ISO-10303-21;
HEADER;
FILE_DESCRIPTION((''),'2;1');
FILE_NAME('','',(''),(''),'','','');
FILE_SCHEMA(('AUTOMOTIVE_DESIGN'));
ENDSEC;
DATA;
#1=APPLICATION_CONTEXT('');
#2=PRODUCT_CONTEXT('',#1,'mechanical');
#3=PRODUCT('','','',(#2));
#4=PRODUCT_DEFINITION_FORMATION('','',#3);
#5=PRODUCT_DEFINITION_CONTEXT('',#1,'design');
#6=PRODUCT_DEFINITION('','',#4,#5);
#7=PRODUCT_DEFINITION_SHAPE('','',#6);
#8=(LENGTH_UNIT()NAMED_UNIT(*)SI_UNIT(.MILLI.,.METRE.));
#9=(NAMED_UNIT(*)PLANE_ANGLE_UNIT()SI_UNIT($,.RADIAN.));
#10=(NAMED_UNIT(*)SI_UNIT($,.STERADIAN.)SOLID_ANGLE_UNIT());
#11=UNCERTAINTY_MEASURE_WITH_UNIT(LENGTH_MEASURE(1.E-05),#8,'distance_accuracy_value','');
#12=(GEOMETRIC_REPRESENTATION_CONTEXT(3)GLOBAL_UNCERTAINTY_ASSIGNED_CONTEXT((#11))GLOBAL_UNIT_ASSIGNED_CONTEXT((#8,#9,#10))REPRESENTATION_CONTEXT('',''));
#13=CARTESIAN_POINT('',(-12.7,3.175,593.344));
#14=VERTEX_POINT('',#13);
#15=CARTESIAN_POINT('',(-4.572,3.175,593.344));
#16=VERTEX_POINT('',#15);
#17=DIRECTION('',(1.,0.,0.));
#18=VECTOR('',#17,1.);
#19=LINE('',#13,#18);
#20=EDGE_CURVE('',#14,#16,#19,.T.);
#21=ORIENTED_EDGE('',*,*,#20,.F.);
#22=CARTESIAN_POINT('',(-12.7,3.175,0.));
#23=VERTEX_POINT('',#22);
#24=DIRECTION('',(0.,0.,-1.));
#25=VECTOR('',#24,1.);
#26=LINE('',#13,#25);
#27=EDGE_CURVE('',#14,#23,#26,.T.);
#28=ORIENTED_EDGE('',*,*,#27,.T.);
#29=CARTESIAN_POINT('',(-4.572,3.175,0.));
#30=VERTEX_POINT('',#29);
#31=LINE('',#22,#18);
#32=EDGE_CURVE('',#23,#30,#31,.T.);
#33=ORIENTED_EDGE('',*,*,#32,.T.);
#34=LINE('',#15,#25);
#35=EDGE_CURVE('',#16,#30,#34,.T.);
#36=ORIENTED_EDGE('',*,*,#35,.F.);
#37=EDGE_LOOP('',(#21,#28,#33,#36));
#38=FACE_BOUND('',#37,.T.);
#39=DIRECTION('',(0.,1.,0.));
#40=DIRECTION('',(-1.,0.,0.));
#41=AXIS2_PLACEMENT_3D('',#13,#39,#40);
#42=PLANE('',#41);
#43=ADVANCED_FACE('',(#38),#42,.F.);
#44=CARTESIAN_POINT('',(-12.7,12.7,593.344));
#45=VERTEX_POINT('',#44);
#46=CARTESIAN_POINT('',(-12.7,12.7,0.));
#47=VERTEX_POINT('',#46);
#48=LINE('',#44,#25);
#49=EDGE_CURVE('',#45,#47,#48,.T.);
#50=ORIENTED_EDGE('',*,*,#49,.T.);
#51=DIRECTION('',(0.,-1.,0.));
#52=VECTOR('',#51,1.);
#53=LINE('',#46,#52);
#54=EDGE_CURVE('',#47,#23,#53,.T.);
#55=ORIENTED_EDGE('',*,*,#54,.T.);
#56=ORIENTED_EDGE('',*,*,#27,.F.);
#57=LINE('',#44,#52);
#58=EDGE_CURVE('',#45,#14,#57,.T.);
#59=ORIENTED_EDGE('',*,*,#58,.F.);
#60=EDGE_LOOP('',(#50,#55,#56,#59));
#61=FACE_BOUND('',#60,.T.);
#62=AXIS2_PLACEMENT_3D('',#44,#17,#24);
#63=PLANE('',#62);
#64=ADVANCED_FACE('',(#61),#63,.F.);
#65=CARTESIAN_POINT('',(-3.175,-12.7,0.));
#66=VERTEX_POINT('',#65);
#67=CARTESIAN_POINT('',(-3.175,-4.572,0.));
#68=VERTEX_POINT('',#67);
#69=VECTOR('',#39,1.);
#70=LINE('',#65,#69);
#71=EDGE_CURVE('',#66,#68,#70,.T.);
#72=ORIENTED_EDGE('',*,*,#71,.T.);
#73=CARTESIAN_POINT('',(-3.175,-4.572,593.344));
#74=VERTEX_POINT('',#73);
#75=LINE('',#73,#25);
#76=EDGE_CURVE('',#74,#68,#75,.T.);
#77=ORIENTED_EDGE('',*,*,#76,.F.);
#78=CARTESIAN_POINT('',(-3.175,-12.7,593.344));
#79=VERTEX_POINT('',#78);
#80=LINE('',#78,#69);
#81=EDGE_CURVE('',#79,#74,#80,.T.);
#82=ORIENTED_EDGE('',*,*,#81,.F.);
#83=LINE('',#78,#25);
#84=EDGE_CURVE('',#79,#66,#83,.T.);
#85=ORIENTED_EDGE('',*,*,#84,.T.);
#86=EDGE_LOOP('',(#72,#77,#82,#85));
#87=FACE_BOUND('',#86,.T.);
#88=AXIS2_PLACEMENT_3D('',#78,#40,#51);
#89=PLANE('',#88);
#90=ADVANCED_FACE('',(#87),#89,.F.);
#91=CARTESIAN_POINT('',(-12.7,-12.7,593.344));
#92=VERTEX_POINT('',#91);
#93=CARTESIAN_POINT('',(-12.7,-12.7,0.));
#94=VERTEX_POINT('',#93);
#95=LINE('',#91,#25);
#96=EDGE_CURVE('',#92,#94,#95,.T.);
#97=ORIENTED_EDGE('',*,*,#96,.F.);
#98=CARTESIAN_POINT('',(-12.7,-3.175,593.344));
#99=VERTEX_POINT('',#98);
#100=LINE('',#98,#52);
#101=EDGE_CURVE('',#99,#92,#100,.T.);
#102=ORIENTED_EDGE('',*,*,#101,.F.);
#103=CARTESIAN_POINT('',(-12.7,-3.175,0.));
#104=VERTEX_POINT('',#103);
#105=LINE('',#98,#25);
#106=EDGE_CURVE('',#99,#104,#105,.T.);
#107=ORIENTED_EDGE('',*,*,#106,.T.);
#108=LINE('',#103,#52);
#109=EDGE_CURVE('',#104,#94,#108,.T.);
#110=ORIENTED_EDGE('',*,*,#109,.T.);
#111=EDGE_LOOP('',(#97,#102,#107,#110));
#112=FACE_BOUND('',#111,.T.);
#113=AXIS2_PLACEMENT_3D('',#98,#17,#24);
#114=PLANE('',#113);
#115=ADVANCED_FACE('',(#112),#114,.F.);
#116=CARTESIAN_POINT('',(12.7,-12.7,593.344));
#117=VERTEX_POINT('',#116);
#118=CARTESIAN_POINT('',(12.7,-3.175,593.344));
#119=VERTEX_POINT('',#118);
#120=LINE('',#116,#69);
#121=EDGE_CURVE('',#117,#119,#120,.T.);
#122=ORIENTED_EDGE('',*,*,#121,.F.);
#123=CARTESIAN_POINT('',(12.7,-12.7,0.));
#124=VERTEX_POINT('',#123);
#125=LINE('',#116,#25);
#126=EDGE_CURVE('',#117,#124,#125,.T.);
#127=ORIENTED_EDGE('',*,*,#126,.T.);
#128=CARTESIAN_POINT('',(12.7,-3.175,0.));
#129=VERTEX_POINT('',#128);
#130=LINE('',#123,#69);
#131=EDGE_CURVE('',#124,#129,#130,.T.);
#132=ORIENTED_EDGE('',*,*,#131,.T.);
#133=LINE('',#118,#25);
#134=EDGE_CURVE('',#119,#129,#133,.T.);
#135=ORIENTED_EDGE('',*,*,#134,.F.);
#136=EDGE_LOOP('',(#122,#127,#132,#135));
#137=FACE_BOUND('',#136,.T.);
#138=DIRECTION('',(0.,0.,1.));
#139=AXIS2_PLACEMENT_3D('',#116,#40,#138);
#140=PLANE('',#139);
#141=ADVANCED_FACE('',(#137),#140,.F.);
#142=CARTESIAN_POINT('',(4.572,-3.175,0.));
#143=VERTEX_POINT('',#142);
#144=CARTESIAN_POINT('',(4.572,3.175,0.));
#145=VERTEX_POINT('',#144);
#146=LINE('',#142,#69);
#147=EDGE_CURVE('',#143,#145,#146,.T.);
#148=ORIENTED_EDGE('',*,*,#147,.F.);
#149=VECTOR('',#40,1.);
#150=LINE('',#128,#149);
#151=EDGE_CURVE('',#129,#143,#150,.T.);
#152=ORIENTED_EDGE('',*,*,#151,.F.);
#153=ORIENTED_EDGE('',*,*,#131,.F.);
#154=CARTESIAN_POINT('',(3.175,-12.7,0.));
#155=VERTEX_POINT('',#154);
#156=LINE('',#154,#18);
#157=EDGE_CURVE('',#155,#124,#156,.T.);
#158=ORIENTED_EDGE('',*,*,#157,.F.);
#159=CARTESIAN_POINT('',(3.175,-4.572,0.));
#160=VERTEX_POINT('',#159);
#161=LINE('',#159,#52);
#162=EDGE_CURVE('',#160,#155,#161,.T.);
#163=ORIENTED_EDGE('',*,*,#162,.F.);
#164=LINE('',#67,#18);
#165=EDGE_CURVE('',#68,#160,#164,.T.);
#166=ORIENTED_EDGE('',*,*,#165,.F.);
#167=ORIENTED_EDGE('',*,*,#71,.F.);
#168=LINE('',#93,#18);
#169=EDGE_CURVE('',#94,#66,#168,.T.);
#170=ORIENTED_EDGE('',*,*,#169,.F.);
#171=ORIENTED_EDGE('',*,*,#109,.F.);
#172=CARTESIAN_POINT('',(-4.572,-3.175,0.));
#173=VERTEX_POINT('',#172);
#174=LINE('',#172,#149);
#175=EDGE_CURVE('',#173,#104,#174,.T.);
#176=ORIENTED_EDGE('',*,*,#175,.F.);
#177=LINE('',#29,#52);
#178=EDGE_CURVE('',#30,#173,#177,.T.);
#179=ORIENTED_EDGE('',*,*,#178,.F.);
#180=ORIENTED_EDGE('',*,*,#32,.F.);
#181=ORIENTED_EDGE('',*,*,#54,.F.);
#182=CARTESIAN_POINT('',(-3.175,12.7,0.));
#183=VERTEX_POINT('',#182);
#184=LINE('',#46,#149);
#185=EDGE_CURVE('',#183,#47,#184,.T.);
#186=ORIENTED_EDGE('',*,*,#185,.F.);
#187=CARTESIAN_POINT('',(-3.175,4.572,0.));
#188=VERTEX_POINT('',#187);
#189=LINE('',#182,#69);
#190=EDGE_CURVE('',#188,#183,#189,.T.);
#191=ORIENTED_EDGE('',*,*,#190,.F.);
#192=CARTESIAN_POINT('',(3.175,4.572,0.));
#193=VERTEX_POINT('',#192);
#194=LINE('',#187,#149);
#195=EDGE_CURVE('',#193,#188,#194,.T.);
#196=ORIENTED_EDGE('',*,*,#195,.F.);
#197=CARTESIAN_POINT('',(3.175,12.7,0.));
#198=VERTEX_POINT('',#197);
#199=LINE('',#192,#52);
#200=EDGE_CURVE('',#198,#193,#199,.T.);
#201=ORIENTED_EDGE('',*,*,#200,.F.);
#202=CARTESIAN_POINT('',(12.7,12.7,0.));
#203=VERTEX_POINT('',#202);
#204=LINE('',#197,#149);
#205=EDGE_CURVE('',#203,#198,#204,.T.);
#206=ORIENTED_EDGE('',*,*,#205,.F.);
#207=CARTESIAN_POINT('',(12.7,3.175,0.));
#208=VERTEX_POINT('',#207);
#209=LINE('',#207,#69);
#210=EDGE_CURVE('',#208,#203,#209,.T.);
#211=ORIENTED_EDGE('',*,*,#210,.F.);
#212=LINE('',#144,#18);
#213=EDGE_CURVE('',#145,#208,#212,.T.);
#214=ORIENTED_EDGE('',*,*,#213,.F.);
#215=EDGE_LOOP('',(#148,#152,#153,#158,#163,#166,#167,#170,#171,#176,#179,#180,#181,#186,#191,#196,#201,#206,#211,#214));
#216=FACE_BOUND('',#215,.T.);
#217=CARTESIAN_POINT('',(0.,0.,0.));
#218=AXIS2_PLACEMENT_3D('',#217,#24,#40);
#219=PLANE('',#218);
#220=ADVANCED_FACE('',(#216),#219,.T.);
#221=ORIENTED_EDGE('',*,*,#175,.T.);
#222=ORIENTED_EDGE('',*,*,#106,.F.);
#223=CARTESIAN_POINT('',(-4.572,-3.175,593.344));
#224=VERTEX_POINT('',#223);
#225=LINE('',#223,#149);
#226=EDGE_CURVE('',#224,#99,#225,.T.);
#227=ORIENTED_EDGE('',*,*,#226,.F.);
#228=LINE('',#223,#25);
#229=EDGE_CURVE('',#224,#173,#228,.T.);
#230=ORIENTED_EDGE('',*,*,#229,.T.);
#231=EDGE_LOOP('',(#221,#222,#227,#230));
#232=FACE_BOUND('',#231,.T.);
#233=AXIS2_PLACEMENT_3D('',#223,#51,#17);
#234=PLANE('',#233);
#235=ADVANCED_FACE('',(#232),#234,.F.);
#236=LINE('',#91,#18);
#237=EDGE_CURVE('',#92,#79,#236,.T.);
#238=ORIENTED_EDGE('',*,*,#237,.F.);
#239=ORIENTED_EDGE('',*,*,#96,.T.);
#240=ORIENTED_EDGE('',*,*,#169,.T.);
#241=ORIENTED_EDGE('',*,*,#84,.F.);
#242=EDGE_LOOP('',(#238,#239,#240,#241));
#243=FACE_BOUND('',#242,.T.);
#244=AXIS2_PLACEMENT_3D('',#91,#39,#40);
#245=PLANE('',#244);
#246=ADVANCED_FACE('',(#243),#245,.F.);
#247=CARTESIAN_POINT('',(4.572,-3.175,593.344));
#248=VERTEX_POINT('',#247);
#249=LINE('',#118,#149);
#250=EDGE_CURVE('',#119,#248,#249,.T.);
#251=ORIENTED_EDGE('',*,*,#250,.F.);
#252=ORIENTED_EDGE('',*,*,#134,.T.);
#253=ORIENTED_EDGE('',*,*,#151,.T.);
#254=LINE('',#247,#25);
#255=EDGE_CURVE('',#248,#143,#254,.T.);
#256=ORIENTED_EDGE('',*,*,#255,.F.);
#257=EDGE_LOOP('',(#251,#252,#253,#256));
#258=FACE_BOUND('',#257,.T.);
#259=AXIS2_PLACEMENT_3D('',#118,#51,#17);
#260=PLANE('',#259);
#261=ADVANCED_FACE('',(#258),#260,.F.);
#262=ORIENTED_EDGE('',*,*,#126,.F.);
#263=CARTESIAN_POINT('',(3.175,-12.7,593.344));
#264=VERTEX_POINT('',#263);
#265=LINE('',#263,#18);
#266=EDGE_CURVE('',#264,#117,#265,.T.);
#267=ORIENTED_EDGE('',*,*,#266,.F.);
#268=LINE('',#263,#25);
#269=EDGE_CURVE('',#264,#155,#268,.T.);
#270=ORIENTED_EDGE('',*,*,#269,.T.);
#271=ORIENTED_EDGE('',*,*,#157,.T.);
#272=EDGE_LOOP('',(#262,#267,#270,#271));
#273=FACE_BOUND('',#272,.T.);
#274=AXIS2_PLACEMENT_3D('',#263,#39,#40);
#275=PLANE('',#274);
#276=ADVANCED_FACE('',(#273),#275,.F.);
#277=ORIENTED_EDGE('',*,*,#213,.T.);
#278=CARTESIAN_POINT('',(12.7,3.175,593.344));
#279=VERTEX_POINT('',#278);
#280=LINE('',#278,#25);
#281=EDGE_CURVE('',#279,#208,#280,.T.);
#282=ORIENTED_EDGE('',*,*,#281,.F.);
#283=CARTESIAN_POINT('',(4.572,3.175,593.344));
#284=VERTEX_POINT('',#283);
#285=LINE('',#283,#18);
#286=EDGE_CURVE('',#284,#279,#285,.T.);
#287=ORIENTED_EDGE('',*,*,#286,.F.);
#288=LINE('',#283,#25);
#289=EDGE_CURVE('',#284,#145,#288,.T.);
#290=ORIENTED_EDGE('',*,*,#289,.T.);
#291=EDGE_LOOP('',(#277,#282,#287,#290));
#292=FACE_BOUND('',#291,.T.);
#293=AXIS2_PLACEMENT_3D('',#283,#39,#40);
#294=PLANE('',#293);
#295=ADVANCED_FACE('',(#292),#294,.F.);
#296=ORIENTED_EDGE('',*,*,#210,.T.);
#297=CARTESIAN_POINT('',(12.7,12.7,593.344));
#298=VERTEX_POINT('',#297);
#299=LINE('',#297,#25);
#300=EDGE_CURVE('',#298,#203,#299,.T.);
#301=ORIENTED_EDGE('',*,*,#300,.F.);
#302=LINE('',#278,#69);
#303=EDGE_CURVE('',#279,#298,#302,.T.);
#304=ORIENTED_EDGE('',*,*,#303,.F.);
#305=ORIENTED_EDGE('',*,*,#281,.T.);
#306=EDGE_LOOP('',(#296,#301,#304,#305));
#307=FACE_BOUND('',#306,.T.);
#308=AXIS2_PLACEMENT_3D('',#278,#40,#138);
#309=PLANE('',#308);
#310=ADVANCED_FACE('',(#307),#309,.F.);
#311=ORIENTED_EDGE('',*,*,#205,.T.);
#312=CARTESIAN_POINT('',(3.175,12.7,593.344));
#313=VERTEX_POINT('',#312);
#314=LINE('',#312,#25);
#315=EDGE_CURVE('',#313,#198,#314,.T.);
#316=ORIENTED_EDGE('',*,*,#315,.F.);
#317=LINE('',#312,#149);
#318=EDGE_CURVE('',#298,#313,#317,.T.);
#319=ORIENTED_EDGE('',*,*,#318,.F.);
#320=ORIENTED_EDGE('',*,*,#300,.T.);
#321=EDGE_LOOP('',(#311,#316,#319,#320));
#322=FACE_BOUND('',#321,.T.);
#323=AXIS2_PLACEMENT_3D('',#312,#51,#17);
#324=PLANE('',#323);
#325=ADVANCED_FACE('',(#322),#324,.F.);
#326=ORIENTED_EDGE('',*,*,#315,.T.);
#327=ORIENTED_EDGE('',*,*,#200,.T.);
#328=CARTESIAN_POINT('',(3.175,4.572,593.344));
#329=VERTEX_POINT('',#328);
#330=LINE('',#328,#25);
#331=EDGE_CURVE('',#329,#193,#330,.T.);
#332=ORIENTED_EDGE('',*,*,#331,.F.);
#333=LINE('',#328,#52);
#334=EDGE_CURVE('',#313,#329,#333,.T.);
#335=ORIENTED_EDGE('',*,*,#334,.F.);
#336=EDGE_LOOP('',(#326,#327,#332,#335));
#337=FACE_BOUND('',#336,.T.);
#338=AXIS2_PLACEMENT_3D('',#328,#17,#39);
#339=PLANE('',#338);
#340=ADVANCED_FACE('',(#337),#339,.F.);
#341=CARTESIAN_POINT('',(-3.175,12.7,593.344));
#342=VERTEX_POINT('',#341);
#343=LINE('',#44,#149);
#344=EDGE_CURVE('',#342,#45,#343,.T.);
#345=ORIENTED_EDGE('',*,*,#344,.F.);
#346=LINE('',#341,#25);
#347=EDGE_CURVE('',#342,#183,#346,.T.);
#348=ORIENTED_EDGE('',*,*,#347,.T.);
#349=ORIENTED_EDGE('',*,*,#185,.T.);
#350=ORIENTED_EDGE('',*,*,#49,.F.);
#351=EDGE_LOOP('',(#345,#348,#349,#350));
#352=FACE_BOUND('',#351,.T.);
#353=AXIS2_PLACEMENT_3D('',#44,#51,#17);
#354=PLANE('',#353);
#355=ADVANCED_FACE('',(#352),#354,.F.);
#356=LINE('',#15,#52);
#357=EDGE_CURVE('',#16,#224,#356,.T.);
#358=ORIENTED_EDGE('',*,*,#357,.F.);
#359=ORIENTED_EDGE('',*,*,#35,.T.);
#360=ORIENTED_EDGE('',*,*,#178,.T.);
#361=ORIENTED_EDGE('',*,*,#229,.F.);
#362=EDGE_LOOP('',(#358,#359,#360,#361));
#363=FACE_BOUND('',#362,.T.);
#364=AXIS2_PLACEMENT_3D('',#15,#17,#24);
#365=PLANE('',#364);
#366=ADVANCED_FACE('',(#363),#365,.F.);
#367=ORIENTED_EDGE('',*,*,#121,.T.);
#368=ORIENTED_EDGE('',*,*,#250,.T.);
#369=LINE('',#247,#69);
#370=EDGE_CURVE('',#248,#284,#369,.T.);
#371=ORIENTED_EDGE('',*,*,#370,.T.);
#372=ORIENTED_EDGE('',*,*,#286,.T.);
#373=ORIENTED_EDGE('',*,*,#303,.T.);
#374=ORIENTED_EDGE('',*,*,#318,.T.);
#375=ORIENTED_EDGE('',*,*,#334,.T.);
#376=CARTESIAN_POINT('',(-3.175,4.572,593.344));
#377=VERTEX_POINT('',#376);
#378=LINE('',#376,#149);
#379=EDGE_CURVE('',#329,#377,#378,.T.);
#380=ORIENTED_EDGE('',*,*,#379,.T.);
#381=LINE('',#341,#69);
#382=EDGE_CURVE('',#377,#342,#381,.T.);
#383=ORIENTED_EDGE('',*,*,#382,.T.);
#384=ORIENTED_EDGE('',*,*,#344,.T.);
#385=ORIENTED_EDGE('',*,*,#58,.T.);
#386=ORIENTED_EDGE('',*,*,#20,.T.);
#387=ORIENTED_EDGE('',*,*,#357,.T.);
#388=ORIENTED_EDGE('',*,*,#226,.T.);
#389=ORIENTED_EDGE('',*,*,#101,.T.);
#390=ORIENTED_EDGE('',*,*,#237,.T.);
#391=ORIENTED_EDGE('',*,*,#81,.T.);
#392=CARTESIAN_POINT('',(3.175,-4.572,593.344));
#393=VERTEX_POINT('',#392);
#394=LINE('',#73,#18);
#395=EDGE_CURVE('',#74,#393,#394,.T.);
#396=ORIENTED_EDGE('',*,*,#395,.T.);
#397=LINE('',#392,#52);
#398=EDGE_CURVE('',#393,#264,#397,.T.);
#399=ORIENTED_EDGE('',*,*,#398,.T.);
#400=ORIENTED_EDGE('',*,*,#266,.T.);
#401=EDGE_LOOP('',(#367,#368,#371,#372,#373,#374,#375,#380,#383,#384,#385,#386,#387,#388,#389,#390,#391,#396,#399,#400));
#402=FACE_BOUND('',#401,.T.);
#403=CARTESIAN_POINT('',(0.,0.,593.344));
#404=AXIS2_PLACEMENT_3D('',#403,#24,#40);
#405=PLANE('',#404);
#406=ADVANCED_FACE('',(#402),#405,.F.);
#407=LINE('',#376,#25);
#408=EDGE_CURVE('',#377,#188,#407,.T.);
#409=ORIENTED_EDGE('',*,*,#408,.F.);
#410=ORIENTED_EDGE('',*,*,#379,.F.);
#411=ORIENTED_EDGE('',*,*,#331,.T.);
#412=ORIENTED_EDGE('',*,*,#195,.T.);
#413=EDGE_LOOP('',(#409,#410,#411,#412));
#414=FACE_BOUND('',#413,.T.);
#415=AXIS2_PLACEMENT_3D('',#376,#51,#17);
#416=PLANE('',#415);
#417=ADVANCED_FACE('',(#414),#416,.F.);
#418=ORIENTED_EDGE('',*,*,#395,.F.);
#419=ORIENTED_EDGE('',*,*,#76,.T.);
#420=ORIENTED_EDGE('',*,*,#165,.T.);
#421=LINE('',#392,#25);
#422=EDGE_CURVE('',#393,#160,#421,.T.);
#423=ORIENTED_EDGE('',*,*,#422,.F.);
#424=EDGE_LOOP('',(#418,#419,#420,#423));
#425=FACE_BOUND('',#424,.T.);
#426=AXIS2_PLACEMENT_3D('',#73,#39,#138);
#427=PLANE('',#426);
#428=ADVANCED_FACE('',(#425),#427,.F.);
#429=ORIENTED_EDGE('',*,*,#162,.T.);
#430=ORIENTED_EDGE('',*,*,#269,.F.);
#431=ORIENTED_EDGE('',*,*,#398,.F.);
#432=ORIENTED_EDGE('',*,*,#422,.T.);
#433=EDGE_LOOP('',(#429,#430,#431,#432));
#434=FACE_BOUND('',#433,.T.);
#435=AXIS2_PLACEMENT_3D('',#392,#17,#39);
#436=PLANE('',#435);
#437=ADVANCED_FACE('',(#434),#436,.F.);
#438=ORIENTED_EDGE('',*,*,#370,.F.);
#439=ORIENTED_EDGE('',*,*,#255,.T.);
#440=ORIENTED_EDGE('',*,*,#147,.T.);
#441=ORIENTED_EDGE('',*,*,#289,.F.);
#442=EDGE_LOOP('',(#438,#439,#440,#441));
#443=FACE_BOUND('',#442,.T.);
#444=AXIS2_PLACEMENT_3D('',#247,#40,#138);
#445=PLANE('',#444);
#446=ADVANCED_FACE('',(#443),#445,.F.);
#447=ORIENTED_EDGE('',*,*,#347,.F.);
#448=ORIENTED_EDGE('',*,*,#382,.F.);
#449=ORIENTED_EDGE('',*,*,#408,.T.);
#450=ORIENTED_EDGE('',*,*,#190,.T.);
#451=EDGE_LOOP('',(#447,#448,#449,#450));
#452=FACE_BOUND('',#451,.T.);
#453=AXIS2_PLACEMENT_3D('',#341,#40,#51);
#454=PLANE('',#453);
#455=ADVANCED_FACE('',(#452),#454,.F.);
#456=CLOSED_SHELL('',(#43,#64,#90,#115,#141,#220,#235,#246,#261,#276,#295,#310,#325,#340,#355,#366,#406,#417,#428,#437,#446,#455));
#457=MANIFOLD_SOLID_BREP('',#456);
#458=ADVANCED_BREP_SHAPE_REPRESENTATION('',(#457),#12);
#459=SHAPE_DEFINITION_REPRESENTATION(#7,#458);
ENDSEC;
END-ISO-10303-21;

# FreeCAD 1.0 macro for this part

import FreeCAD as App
import Part
import Sketcher
Q = App.Units.Quantity

doc = App.newDocument("Part")
params = doc.addObject("Spreadsheet::Sheet", "Params")
for row, (alias, value) in enumerate([
    ("sketch1_width", "0.32 in"),
    ("sketch1_width2", "0.25 in"),
    ("pad1_length", "23.36 in"),
], start=1):
    params.set(f"A{row}", alias)
    params.set(f"B{row}", "=" + value)
    params.setAlias(f"B{row}", alias)

body = doc.addObject("PartDesign::Body", "Body")

# Sketch on XY plane
sketch1 = doc.addObject("Sketcher::SketchObject", "Sketch")
body.addObject(sketch1)
sketch1.AttachmentSupport = (doc.XY_Plane, [""])
sketch1.MapMode = "FlatFace"
sketch1.addGeometry([
    Part.LineSegment(App.Vector(-13, 13, 0), App.Vector(-13, 3, 0)),  # 0
    Part.LineSegment(App.Vector(-13, 3, 0), App.Vector(-5, 3, 0)),  # 1
    Part.LineSegment(App.Vector(-5, 3, 0), App.Vector(-5, -3, 0)),  # 2
    Part.LineSegment(App.Vector(-5, -3, 0), App.Vector(-13, -3, 0)),  # 3
    Part.LineSegment(App.Vector(-13, -3, 0), App.Vector(-13, -13, 0)),  # 4
    Part.LineSegment(App.Vector(-13, -13, 0), App.Vector(-3, -13, 0)),  # 5
    Part.LineSegment(App.Vector(-3, -13, 0), App.Vector(-3, -5, 0)),  # 6
    Part.LineSegment(App.Vector(-3, -5, 0), App.Vector(3, -5, 0)),  # 7
    Part.LineSegment(App.Vector(3, -5, 0), App.Vector(3, -13, 0)),  # 8
    Part.LineSegment(App.Vector(3, -13, 0), App.Vector(13, -13, 0)),  # 9
    Part.LineSegment(App.Vector(13, -13, 0), App.Vector(13, -3, 0)),  # 10
    Part.LineSegment(App.Vector(13, -3, 0), App.Vector(5, -3, 0)),  # 11
    Part.LineSegment(App.Vector(5, -3, 0), App.Vector(5, 3, 0)),  # 12
    Part.LineSegment(App.Vector(5, 3, 0), App.Vector(13, 3, 0)),  # 13
    Part.LineSegment(App.Vector(13, 3, 0), App.Vector(13, 13, 0)),  # 14
    Part.LineSegment(App.Vector(13, 13, 0), App.Vector(3, 13, 0)),  # 15
    Part.LineSegment(App.Vector(3, 13, 0), App.Vector(3, 5, 0)),  # 16
    Part.LineSegment(App.Vector(3, 5, 0), App.Vector(-3, 5, 0)),  # 17
    Part.LineSegment(App.Vector(-3, 5, 0), App.Vector(-3, 13, 0)),  # 18
    Part.LineSegment(App.Vector(-3, 13, 0), App.Vector(-13, 13, 0)),  # 19
], False)
sketch1.addConstraint([
    Sketcher.Constraint("Coincident", 0, 2, 1, 1),
    Sketcher.Constraint("Coincident", 1, 2, 2, 1),
    Sketcher.Constraint("Coincident", 2, 2, 3, 1),
    Sketcher.Constraint("Coincident", 3, 2, 4, 1),
    Sketcher.Constraint("Coincident", 4, 2, 5, 1),
    Sketcher.Constraint("Coincident", 5, 2, 6, 1),
    Sketcher.Constraint("Coincident", 6, 2, 7, 1),
    Sketcher.Constraint("Coincident", 7, 2, 8, 1),
    Sketcher.Constraint("Coincident", 8, 2, 9, 1),
    Sketcher.Constraint("Coincident", 9, 2, 10, 1),
    Sketcher.Constraint("Coincident", 10, 2, 11, 1),
    Sketcher.Constraint("Coincident", 11, 2, 12, 1),
    Sketcher.Constraint("Coincident", 12, 2, 13, 1),
    Sketcher.Constraint("Coincident", 13, 2, 14, 1),
    Sketcher.Constraint("Coincident", 14, 2, 15, 1),
    Sketcher.Constraint("Coincident", 15, 2, 16, 1),
    Sketcher.Constraint("Coincident", 16, 2, 17, 1),
    Sketcher.Constraint("Coincident", 17, 2, 18, 1),
    Sketcher.Constraint("Coincident", 18, 2, 19, 1),
    Sketcher.Constraint("Coincident", 19, 2, 0, 1),
    Sketcher.Constraint("Vertical", 0),
    Sketcher.Constraint("Horizontal", 1),
    Sketcher.Constraint("Vertical", 2),
    Sketcher.Constraint("Horizontal", 3),
    Sketcher.Constraint("Vertical", 4),
    Sketcher.Constraint("Horizontal", 5),
    Sketcher.Constraint("Vertical", 6),
    Sketcher.Constraint("Horizontal", 7),
    Sketcher.Constraint("Vertical", 8),
    Sketcher.Constraint("Horizontal", 9),
    Sketcher.Constraint("Vertical", 10),
    Sketcher.Constraint("Horizontal", 11),
    Sketcher.Constraint("Vertical", 12),
    Sketcher.Constraint("Horizontal", 13),
    Sketcher.Constraint("Vertical", 14),
    Sketcher.Constraint("Horizontal", 15),
    Sketcher.Constraint("Vertical", 16),
    Sketcher.Constraint("Horizontal", 17),
    Sketcher.Constraint("Vertical", 18),
    Sketcher.Constraint("Horizontal", 19),
    Sketcher.Constraint("Symmetric", 0, 2, 10, 2, -1, 1),
    Sketcher.Constraint("Symmetric", 2, 2, 12, 2, -1, 1),
    Sketcher.Constraint("Symmetric", 4, 2, 14, 2, -1, 1),
    Sketcher.Constraint("Symmetric", 6, 2, 16, 2, -1, 1),
    Sketcher.Constraint("Symmetric", 8, 2, 18, 2, -1, 1),
    Sketcher.Constraint("Symmetric", 5, 2, 8, 2, -2),
    Sketcher.Constraint("Symmetric", 3, 2, 10, 2, -2),
    Sketcher.Constraint("Equal", 19, 0),
    Sketcher.Constraint("Equal", 17, 2),
    Sketcher.Constraint("Equal", 13, 6),
    Sketcher.Constraint("DistanceX", 1, 1, 1, 2, Q("0.32 in")),
    Sketcher.Constraint("DistanceX", 7, 1, 7, 2, Q("0.25 in")),
    Sketcher.Constraint("DistanceX", 0, 2, -1, 1, Q("0.5 in")),
])
sketch1.setExpression("Constraints[50]", "Params.sketch1_width")
sketch1.setExpression("Constraints[51]", "Params.sketch1_width2")
pad1 = doc.addObject("PartDesign::Pad", "Pad")
body.addObject(pad1)
pad1.Profile = sketch1
pad1.setExpression("Length", "Params.pad1_length")

doc.recompute()
